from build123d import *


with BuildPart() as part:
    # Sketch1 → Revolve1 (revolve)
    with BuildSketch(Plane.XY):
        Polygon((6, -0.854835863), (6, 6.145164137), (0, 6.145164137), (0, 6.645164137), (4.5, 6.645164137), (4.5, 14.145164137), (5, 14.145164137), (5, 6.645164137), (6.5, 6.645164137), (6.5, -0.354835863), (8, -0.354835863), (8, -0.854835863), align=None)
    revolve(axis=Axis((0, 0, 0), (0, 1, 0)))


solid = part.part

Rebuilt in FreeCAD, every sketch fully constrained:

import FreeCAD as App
import Part
import Sketcher

V = App.Vector


def add_polygon(sketch, points):
    """Adds a closed chain of lines whose ends are joined by coincident constraints."""
    first, n = sketch.GeometryCount, len(points)
    for a, b in zip(points, points[1:] + points[:1]):
        sketch.addGeometry(Part.LineSegment(App.Vector(*a, 0), App.Vector(*b, 0)), False)
    for i in range(n):
        sketch.addConstraint(Sketcher.Constraint("Coincident", first + i, 2, first + (i + 1) % n, 1))

doc = App.newDocument("Part")
params = doc.addObject("Spreadsheet::Sheet", "Params")
for row, (alias, value) in enumerate([
    ("sketch1_width", "2 mm"),
    ("sketch1_width2", "6 mm"),
    ("sketch1_height", "7 mm"),
    ("sketch1_width3", "1.5 mm"),
    ("sketch1_width4", "0.5 mm"),
    ("revolution_angle", "360 deg"),
], start=1):
    params.set(f"A{row}", alias)
    params.set(f"B{row}", "=" + value)
    params.setAlias(f"B{row}", alias)

body = doc.addObject("PartDesign::Body", "Body")

sketch1 = body.newObject("Sketcher::SketchObject", "Sketch")
sketch1.AttachmentSupport = (doc.getObject("XY_Plane"), [""])
sketch1.MapMode = "FlatFace"
add_polygon(sketch1, [(6, 6.1), (6, -0.9), (8, -0.9), (8, -0.4), (6.5, -0.4), (6.5, 6.6), (5, 6.6), (5, 14.1), (4.5, 14.1), (4.5, 6.6), (0, 6.6), (0, 6.1)])
sketch1.addConstraint(Sketcher.Constraint("Vertical", 0))
sketch1.addConstraint(Sketcher.Constraint("Horizontal", 1))
sketch1.addConstraint(Sketcher.Constraint("Vertical", 2))
sketch1.addConstraint(Sketcher.Constraint("Horizontal", 3))
sketch1.addConstraint(Sketcher.Constraint("Vertical", 4))
sketch1.addConstraint(Sketcher.Constraint("Horizontal", 5))
sketch1.addConstraint(Sketcher.Constraint("Vertical", 6))
sketch1.addConstraint(Sketcher.Constraint("Horizontal", 7))
sketch1.addConstraint(Sketcher.Constraint("Vertical", 8))
sketch1.addConstraint(Sketcher.Constraint("Horizontal", 9))
sketch1.addConstraint(Sketcher.Constraint("Vertical", 10))
sketch1.addConstraint(Sketcher.Constraint("Horizontal", 11))
sketch1.addConstraint(Sketcher.Constraint("PointOnObject", 9, 2, -2))
sketch1.addConstraint(Sketcher.Constraint("Horizontal", 5, 2, 8, 2))
sketch1.addConstraint(Sketcher.Constraint("Equal", 3, 5))
sketch1.addConstraint(Sketcher.Constraint("Equal", 7, 2))
sketch1.addConstraint(Sketcher.Constraint("Equal", 0, 4))
sketch1.addConstraint(Sketcher.Constraint("DistanceX", 1, 1, 1, 2, 2.0))
sketch1.addConstraint(Sketcher.Constraint("DistanceX", 11, 1, 11, 2, 6.0))
sketch1.addConstraint(Sketcher.Constraint("DistanceY", 0, 2, 0, 1, 7.0))
sketch1.addConstraint(Sketcher.Constraint("DistanceX", 3, 2, 3, 1, 1.5))
sketch1.addConstraint(Sketcher.Constraint("DistanceX", 7, 2, 7, 1, 0.5))
sketch1.addConstraint(Sketcher.Constraint("DistanceY", 6, 1, 6, 2, 7.5))
sketch1.addConstraint(Sketcher.Constraint("DistanceY", 0, 2, -1, 1, 0.854836))
sketch1.setExpression("Constraints[29]", "Params.sketch1_width")
sketch1.setExpression("Constraints[30]", "Params.sketch1_width2")
sketch1.setExpression("Constraints[31]", "Params.sketch1_height")
sketch1.setExpression("Constraints[32]", "Params.sketch1_width3")
sketch1.setExpression("Constraints[33]", "Params.sketch1_width4")
revolution = body.newObject("PartDesign::Revolution", "Revolution")
revolution.Profile = sketch1
revolution.ReferenceAxis = (sketch1, ["V_Axis"])
revolution.setExpression("Angle", "Params.revolution_angle")

doc.recompute()
